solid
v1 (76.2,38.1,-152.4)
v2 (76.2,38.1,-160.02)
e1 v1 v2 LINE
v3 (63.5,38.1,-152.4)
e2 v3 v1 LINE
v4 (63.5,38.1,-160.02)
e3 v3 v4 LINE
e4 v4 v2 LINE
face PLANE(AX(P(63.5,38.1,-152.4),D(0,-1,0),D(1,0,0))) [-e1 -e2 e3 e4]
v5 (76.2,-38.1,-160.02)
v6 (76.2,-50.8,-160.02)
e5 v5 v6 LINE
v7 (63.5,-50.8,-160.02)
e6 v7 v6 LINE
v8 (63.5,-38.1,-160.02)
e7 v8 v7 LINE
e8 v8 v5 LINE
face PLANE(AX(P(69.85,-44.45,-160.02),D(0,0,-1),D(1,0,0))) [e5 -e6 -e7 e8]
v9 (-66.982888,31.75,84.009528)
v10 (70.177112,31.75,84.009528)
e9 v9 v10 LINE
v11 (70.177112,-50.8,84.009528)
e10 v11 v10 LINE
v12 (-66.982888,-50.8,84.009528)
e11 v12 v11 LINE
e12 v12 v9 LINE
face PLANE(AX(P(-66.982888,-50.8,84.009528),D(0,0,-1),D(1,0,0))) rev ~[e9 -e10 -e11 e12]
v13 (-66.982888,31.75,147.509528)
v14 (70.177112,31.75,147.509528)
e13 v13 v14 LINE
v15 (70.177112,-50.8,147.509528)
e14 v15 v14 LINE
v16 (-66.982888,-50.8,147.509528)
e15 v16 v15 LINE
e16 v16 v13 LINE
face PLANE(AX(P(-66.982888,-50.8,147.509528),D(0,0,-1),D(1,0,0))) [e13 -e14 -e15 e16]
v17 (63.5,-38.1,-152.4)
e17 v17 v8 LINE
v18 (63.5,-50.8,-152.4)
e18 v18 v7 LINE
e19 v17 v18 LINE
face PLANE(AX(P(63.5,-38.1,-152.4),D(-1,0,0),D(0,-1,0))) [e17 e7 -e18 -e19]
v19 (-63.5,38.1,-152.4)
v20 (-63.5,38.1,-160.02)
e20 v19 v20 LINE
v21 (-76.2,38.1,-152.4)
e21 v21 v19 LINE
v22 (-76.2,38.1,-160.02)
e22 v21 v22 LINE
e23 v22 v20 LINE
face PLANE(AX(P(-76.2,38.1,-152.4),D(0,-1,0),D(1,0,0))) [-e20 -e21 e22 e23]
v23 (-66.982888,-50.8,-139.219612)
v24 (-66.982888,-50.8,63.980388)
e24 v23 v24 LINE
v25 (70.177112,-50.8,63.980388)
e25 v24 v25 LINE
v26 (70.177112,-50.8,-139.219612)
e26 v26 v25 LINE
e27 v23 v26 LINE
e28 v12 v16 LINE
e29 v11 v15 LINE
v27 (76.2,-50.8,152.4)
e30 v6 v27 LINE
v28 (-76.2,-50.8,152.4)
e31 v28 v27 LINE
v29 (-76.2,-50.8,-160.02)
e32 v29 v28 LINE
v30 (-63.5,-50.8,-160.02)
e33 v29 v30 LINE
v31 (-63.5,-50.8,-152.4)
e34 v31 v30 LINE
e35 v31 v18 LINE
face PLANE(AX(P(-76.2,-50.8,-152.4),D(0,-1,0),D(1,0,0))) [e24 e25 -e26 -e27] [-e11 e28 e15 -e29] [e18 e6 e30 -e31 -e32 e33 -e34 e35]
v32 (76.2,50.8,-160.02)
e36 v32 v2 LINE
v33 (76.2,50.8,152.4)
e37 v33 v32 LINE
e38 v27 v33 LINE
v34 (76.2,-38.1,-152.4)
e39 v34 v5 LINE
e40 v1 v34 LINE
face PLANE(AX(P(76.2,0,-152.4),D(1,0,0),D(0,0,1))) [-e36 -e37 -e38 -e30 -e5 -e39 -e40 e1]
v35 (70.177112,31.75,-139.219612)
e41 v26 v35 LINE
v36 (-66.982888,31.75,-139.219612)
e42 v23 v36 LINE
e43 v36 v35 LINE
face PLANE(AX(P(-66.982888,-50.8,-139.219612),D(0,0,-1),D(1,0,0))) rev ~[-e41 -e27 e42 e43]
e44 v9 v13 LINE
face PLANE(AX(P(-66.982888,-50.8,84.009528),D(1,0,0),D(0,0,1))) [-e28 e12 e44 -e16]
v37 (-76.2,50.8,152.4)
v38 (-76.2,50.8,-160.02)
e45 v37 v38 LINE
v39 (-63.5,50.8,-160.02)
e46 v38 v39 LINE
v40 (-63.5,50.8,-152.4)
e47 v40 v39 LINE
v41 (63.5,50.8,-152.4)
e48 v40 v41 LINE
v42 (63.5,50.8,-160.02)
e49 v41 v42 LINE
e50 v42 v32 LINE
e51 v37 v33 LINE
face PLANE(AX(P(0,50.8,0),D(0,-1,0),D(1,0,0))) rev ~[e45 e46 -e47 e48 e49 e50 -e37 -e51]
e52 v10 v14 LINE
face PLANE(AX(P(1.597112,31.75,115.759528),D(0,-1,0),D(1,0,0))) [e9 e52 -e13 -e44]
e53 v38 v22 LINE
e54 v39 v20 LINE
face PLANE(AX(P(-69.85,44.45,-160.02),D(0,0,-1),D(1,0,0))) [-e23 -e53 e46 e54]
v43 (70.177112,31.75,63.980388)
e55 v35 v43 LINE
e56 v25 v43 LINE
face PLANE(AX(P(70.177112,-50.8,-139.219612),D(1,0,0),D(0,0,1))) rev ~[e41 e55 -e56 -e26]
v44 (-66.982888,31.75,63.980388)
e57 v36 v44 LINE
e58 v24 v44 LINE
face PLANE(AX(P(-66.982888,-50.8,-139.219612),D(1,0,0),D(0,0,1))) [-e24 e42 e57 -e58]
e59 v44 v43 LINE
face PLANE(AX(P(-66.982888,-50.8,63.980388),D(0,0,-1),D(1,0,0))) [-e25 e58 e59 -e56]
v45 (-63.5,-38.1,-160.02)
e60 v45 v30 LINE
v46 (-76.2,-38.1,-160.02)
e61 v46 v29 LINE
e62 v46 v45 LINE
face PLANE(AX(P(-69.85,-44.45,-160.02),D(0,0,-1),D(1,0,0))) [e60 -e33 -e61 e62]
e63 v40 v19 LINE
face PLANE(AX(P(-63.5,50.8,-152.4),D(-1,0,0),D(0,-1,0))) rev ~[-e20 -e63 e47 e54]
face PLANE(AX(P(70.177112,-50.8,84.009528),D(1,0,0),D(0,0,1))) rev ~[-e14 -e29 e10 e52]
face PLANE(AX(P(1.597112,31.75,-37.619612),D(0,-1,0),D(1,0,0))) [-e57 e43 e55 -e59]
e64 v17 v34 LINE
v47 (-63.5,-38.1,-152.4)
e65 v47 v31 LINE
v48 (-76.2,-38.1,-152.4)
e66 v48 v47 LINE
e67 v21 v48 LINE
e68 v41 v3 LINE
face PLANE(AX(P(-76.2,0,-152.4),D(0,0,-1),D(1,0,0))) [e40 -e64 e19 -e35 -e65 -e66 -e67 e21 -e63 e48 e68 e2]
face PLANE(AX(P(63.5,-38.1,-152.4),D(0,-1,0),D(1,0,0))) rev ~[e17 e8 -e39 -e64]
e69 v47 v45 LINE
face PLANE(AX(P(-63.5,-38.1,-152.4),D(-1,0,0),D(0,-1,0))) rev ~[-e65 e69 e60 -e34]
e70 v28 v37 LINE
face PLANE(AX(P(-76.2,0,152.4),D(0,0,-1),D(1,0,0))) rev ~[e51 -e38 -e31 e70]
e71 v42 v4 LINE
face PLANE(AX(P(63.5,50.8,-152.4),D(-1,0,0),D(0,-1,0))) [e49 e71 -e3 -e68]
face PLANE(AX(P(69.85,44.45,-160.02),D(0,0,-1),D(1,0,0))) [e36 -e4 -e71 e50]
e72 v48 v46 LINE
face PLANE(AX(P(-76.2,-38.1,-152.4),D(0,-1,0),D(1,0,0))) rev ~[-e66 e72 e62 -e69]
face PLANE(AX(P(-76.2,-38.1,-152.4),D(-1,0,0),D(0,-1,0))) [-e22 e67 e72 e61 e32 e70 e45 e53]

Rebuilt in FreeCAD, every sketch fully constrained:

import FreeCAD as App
import Part
import Sketcher

V = App.Vector
Q = App.Units.Quantity

doc = App.newDocument("Part")
params = doc.addObject("Spreadsheet::Sheet", "Params")
for row, (alias, value) in enumerate([
    ("sketch1_width", "6 in"),
    ("sketch1_height", "12 in"),
    ("pad1_length", "4 in"),
    ("sketch2_height", "8 in"),
    ("sketch2_width", "5.4 in"),
    ("sketch2_height2", "2.5 in"),
    ("pocket1_length", "3.25 in"),
    ("sketch3_width", "0.5 in"),
    ("pad2_length", "0.3 in"),
], start=1):
    params.set(f"A{row}", alias)
    params.set(f"B{row}", "=" + value)
    params.setAlias(f"B{row}", alias)

body = doc.addObject("PartDesign::Body", "Body")

sketch1 = body.newObject("Sketcher::SketchObject", "Sketch")
sketch1.AttachmentSupport = (doc.getObject("XZ_Plane"), [""])
sketch1.MapMode = "FlatFace"
sketch1.addGeometry([
    Part.LineSegment(V(-76, 152, 0), V(-76, -152, 0)),
    Part.LineSegment(V(-76, -152, 0), V(76, -152, 0)),
    Part.LineSegment(V(76, -152, 0), V(76, 152, 0)),
    Part.LineSegment(V(76, 152, 0), V(-76, 152, 0)),
], False)
sketch1.addConstraint([
    Sketcher.Constraint("Coincident", 0, 2, 1, 1),
    Sketcher.Constraint("Coincident", 1, 2, 2, 1),
    Sketcher.Constraint("Coincident", 2, 2, 3, 1),
    Sketcher.Constraint("Coincident", 3, 2, 0, 1),
    Sketcher.Constraint("Vertical", 0),
    Sketcher.Constraint("Horizontal", 1),
    Sketcher.Constraint("Vertical", 2),
    Sketcher.Constraint("Horizontal", 3),
    Sketcher.Constraint("Symmetric", 0, 2, 2, 2, -1, 1),
    Sketcher.Constraint("DistanceX", 1, 1, 1, 2, Q("6 in")),
    Sketcher.Constraint("DistanceY", 0, 2, 0, 1, Q("12 in")),
])
sketch1.setExpression("Constraints[9]", "Params.sketch1_width")
sketch1.setExpression("Constraints[10]", "Params.sketch1_height")
pad1 = body.newObject("PartDesign::Pad", "Pad")
pad1.Profile = sketch1
pad1.setExpression("Length", "Params.pad1_length")
pad1.Midplane = True

sketch2 = body.newObject("Sketcher::SketchObject", "Sketch001")
sketch2.AttachmentSupport = (doc.getObject("XZ_Plane"), [""])
sketch2.MapMode = "FlatFace"
sketch2.AttachmentOffset = App.Placement(V(0, 0, 2 * 25.4), App.Rotation())
sketch2.addGeometry([
    Part.LineSegment(V(-67, 148, 0), V(-67, 84, 0)),
    Part.LineSegment(V(-67, 84, 0), V(70, 84, 0)),
    Part.LineSegment(V(70, 84, 0), V(70, 148, 0)),
    Part.LineSegment(V(70, 148, 0), V(-67, 148, 0)),
    Part.LineSegment(V(-67, 64, 0), V(-67, -139, 0)),
    Part.LineSegment(V(-67, -139, 0), V(70, -139, 0)),
    Part.LineSegment(V(70, -139, 0), V(70, 64, 0)),
    Part.LineSegment(V(70, 64, 0), V(-67, 64, 0)),
], False)
sketch2.addConstraint([
    Sketcher.Constraint("Coincident", 0, 2, 1, 1),
    Sketcher.Constraint("Coincident", 1, 2, 2, 1),
    Sketcher.Constraint("Coincident", 2, 2, 3, 1),
    Sketcher.Constraint("Coincident", 3, 2, 0, 1),
    Sketcher.Constraint("Coincident", 4, 2, 5, 1),
    Sketcher.Constraint("Coincident", 5, 2, 6, 1),
    Sketcher.Constraint("Coincident", 6, 2, 7, 1),
    Sketcher.Constraint("Coincident", 7, 2, 4, 1),
    Sketcher.Constraint("Vertical", 0),
    Sketcher.Constraint("Horizontal", 1),
    Sketcher.Constraint("Vertical", 2),
    Sketcher.Constraint("Horizontal", 3),
    Sketcher.Constraint("Vertical", 4),
    Sketcher.Constraint("Horizontal", 5),
    Sketcher.Constraint("Vertical", 6),
    Sketcher.Constraint("Horizontal", 7),
    Sketcher.Constraint("Vertical", 3, 2, 4, 2),
    Sketcher.Constraint("Vertical", 2, 2, 5, 2),
    Sketcher.Constraint("DistanceY", 4, 2, 4, 1, Q("8 in")),
    Sketcher.Constraint("DistanceX", 1, 1, 1, 2, Q("5.4 in")),
    Sketcher.Constraint("DistanceY", 0, 2, 0, 1, Q("2.5 in")),
    Sketcher.Constraint("DistanceX", 0, 2, -1, 1, Q("66.982888 mm")),
    Sketcher.Constraint("DistanceY", -1, 1, 0, 2, Q("84.009528 mm")),
    Sketcher.Constraint("DistanceY", 4, 2, 0, 2, Q("223.22914 mm")),
])
sketch2.setExpression("Constraints[18]", "Params.sketch2_height")
sketch2.setExpression("Constraints[19]", "Params.sketch2_width")
sketch2.setExpression("Constraints[20]", "Params.sketch2_height2")
pocket1 = body.newObject("PartDesign::Pocket", "Pocket")
pocket1.Profile = sketch2
pocket1.setExpression("Length", "Params.pocket1_length")

sketch3 = body.newObject("Sketcher::SketchObject", "Sketch002")
sketch3.AttachmentSupport = (doc.getObject("XY_Plane"), [""])
sketch3.MapMode = "FlatFace"
sketch3.AttachmentOffset = App.Placement(V(0, 0, -6 * 25.4), App.Rotation())
sketch3.addGeometry([
    Part.LineSegment(V(-76, -51, 0), V(-76, -38, 0)),
    Part.LineSegment(V(-76, -38, 0), V(-64, -38, 0)),
    Part.LineSegment(V(-64, -38, 0), V(-64, -51, 0)),
    Part.LineSegment(V(-64, -51, 0), V(-76, -51, 0)),
    Part.LineSegment(V(64, -51, 0), V(64, -38, 0)),
    Part.LineSegment(V(64, -38, 0), V(76, -38, 0)),
    Part.LineSegment(V(76, -38, 0), V(76, -51, 0)),
    Part.LineSegment(V(76, -51, 0), V(64, -51, 0)),
    Part.LineSegment(V(-76, 38, 0), V(-76, 51, 0)),
    Part.LineSegment(V(-76, 51, 0), V(-64, 51, 0)),
    Part.LineSegment(V(-64, 51, 0), V(-64, 38, 0)),
    Part.LineSegment(V(-64, 38, 0), V(-76, 38, 0)),
    Part.LineSegment(V(64, 38, 0), V(64, 51, 0)),
    Part.LineSegment(V(64, 51, 0), V(76, 51, 0)),
    Part.LineSegment(V(76, 51, 0), V(76, 38, 0)),
    Part.LineSegment(V(76, 38, 0), V(64, 38, 0)),
], False)
sketch3.addConstraint([
    Sketcher.Constraint("Coincident", 0, 2, 1, 1),
    Sketcher.Constraint("Coincident", 1, 2, 2, 1),
    Sketcher.Constraint("Coincident", 2, 2, 3, 1),
    Sketcher.Constraint("Coincident", 3, 2, 0, 1),
    Sketcher.Constraint("Coincident", 4, 2, 5, 1),
    Sketcher.Constraint("Coincident", 5, 2, 6, 1),
    Sketcher.Constraint("Coincident", 6, 2, 7, 1),
    Sketcher.Constraint("Coincident", 7, 2, 4, 1),
    Sketcher.Constraint("Coincident", 8, 2, 9, 1),
    Sketcher.Constraint("Coincident", 9, 2, 10, 1),
    Sketcher.Constraint("Coincident", 10, 2, 11, 1),
    Sketcher.Constraint("Coincident", 11, 2, 8, 1),
    Sketcher.Constraint("Coincident", 12, 2, 13, 1),
    Sketcher.Constraint("Coincident", 13, 2, 14, 1),
    Sketcher.Constraint("Coincident", 14, 2, 15, 1),
    Sketcher.Constraint("Coincident", 15, 2, 12, 1),
    Sketcher.Constraint("Vertical", 0),
    Sketcher.Constraint("Horizontal", 1),
    Sketcher.Constraint("Vertical", 2),
    Sketcher.Constraint("Horizontal", 3),
    Sketcher.Constraint("Vertical", 4),
    Sketcher.Constraint("Horizontal", 5),
    Sketcher.Constraint("Vertical", 6),
    Sketcher.Constraint("Horizontal", 7),
    Sketcher.Constraint("Vertical", 8),
    Sketcher.Constraint("Horizontal", 9),
    Sketcher.Constraint("Vertical", 10),
    Sketcher.Constraint("Horizontal", 11),
    Sketcher.Constraint("Vertical", 12),
    Sketcher.Constraint("Horizontal", 13),
    Sketcher.Constraint("Vertical", 14),
    Sketcher.Constraint("Horizontal", 15),
    Sketcher.Constraint("Symmetric", 6, 2, 8, 2, -1, 1),
    Sketcher.Constraint("Symmetric", 4, 2, 10, 2, -1, 1),
    Sketcher.Constraint("Symmetric", 2, 2, 12, 2, -1, 1),
    Sketcher.Constraint("Symmetric", 0, 2, 14, 2, -1, 1),
    Sketcher.Constraint("Symmetric", 1, 2, 4, 2, -2),
    Sketcher.Constraint("Symmetric", 3, 2, 6, 2, -2),
    Sketcher.Constraint("Equal", 15, 0),
    Sketcher.Constraint("DistanceX", 1, 1, 1, 2, Q("0.5 in")),
    Sketcher.Constraint("DistanceX", 0, 2, -1, 1, Q("3 in")),
    Sketcher.Constraint("DistanceY", 2, 2, -1, 1, Q("2 in")),
])
sketch3.setExpression("Constraints[39]", "Params.sketch3_width")
pad2 = body.newObject("PartDesign::Pad", "Pad001")
pad2.Profile = sketch3
pad2.setExpression("Length", "Params.pad2_length")
pad2.Reversed = True

doc.recompute()
